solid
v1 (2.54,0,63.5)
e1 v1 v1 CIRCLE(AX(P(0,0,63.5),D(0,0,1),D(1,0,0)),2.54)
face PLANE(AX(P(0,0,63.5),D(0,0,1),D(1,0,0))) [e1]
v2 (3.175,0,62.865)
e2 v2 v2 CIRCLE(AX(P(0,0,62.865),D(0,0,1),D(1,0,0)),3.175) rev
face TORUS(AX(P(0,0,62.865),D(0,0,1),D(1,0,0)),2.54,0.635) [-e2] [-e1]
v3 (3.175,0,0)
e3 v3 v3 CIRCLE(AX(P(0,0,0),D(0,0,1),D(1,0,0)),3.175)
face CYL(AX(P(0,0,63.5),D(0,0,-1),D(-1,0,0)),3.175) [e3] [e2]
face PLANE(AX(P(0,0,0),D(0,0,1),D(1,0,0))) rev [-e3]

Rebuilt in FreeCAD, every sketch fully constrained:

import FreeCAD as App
import Part
import Sketcher
Q = App.Units.Quantity


def edges_at(feature, points):
    """Names of the edges that pass closest to the given points."""
    edges = feature.Shape.Edges
    near = lambda p: min(range(len(edges)), key=lambda i: edges[i].distToShape(Part.Vertex(*p))[0])
    return sorted({f"Edge{near(p) + 1}" for p in points})

doc = App.newDocument("Part")
params = doc.addObject("Spreadsheet::Sheet", "Params")
for row, (alias, value) in enumerate([
    ("sketch1_diameter", "0.25 in"),
    ("pad1_length", "2.5 in"),
    ("fillet_radius", "0.025 in"),
], start=1):
    params.set(f"A{row}", alias)
    params.set(f"B{row}", "=" + value)
    params.setAlias(f"B{row}", alias)

body = doc.addObject("PartDesign::Body", "Body")

# Sketch on XY plane
sketch1 = body.newObject("Sketcher::SketchObject", "Sketch")
sketch1.AttachmentSupport = (doc.getObject("XY_Plane"), [""])
sketch1.MapMode = "FlatFace"
sketch1.addGeometry(Part.Circle(App.Vector(0, 0, 0), App.Vector(0, 0, 1), 3.2), False)
sketch1.addConstraint(Sketcher.Constraint("Coincident", 0, 3, -1, 1))
sketch1.addConstraint(Sketcher.Constraint("Diameter", 0, Q("0.25 in")))
sketch1.setExpression("Constraints[1]", "Params.sketch1_diameter")
pad1 = body.newObject("PartDesign::Pad", "Pad")
pad1.Profile = sketch1
pad1.setExpression("Length", "Params.pad1_length")
doc.recompute()

fillet = body.newObject("PartDesign::Fillet", "Fillet")
fillet.Base = (pad1, edges_at(pad1, [(-3.175, 0, 63.5)]))
fillet.setExpression("Radius", "Params.fillet_radius")

doc.recompute()
